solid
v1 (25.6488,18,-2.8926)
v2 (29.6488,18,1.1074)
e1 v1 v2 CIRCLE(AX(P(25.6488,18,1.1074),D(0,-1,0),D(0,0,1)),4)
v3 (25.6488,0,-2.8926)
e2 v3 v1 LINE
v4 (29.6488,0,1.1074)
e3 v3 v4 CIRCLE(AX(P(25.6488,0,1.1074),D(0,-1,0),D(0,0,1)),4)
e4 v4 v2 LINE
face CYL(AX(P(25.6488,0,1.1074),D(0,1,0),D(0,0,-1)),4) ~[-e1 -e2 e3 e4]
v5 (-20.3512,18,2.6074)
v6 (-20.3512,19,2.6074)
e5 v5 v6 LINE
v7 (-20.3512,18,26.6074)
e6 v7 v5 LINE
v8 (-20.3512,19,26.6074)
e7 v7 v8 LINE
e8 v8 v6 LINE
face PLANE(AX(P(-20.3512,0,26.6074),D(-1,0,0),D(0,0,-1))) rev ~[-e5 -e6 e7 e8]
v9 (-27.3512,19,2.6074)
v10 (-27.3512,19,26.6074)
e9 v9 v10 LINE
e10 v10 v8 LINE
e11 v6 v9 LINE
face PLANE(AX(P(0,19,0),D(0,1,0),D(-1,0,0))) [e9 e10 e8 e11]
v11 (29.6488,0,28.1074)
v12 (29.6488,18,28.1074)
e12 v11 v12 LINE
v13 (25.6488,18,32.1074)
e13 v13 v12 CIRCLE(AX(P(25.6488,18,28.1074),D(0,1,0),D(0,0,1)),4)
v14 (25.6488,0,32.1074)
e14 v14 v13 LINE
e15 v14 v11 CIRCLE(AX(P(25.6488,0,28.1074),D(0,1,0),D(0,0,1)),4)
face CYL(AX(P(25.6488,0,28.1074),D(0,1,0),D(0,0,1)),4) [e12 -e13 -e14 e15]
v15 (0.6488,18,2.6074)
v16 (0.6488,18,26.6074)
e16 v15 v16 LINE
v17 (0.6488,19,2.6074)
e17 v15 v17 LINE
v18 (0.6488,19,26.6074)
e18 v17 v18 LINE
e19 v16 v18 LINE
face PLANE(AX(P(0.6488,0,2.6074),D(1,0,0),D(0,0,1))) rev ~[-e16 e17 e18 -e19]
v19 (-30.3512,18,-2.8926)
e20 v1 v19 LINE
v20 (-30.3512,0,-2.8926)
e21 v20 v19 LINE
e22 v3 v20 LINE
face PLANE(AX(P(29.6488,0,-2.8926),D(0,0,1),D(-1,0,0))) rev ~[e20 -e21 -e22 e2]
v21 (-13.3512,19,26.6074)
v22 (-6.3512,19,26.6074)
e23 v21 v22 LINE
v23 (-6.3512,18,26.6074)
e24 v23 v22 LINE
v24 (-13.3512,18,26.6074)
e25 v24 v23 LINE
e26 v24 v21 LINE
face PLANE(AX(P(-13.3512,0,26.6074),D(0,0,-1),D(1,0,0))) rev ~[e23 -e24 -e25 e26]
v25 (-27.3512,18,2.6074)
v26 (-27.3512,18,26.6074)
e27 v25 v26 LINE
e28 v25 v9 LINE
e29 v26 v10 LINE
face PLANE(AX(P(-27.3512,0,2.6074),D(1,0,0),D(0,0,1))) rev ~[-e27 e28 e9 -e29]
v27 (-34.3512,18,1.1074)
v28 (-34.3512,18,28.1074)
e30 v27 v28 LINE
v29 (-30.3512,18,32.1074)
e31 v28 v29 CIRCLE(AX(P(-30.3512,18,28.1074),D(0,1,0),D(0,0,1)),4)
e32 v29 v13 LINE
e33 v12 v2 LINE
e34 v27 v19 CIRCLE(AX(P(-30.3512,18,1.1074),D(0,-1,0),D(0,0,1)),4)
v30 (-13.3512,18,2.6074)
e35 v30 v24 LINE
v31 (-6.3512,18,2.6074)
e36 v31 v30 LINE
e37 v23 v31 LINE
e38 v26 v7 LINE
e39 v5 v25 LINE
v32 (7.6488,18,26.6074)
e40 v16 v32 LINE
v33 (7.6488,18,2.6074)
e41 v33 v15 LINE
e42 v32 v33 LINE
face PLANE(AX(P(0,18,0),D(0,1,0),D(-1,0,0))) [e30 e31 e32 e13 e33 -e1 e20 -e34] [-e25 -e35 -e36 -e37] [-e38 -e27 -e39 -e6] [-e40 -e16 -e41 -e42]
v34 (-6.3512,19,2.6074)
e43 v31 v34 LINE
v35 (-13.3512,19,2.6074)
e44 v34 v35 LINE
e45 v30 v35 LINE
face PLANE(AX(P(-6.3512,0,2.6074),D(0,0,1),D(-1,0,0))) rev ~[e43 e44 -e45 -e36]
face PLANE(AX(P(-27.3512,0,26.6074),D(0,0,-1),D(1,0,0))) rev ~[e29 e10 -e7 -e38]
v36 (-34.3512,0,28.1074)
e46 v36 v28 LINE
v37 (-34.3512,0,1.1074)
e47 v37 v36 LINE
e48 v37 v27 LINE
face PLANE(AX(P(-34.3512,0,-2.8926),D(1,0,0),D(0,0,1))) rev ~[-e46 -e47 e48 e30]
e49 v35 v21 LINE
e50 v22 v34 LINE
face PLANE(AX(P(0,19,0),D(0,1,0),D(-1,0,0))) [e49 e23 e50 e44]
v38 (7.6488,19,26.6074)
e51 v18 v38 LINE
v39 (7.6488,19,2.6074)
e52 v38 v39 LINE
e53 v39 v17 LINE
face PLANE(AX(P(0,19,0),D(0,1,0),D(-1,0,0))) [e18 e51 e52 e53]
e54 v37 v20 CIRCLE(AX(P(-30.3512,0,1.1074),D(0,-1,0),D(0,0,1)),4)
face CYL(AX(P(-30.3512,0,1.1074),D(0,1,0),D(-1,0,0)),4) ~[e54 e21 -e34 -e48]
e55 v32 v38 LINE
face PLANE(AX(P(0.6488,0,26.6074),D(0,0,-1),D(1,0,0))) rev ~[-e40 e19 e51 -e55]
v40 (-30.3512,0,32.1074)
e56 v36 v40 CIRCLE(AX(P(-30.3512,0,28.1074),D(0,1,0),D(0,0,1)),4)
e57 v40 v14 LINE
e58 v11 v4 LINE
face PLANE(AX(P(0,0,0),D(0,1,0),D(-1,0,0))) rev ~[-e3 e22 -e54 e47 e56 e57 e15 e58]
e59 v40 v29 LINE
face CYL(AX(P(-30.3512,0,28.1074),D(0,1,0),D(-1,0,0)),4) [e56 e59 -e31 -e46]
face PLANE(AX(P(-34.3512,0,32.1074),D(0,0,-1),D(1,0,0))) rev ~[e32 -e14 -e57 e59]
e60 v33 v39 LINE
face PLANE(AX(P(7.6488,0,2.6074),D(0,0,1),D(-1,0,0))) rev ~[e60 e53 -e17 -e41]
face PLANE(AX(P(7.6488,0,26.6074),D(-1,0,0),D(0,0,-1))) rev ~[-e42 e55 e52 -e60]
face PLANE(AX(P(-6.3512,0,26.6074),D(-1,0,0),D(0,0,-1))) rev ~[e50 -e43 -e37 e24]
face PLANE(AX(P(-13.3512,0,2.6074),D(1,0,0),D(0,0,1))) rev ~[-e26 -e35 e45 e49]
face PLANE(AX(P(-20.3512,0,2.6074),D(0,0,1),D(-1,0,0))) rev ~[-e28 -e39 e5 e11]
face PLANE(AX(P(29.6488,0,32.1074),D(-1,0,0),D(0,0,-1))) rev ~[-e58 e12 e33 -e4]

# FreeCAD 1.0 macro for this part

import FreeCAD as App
import Part
import Sketcher
from FreeCAD import Vector
Q = App.Units.Quantity


def edges_at(feature, points):
    """Names of the edges that pass closest to the given points."""
    edges = feature.Shape.Edges
    near = lambda p: min(range(len(edges)), key=lambda i: edges[i].distToShape(Part.Vertex(*p))[0])
    return sorted({f"Edge{near(p) + 1}" for p in points})

doc = App.newDocument("Part")
body = doc.addObject("PartDesign::Body", "Body")

# Sketch on XZ plane
sketch1 = doc.addObject("Sketcher::SketchObject", "Sketch")
body.addObject(sketch1)
sketch1.AttachmentSupport = (doc.XZ_Plane, [""])
sketch1.MapMode = "FlatFace"
sketch1.addGeometry(Part.LineSegment(Vector(-34, -3, 0), Vector(-34, 32, 0)), False)
sketch1.addGeometry(Part.LineSegment(Vector(-34, 32, 0), Vector(30, 32, 0)), False)
sketch1.addGeometry(Part.LineSegment(Vector(30, 32, 0), Vector(30, -3, 0)), False)
sketch1.addGeometry(Part.LineSegment(Vector(30, -3, 0), Vector(-34, -3, 0)), False)
sketch1.addGeometry(Part.LineSegment(Vector(1, 27, 0), Vector(1, 3, 0)), False)
sketch1.addGeometry(Part.LineSegment(Vector(1, 3, 0), Vector(8, 3, 0)), False)
sketch1.addGeometry(Part.LineSegment(Vector(8, 3, 0), Vector(8, 27, 0)), False)
sketch1.addGeometry(Part.LineSegment(Vector(8, 27, 0), Vector(1, 27, 0)), False)
sketch1.addGeometry(Part.LineSegment(Vector(-13, 27, 0), Vector(-13, 3, 0)), False)
sketch1.addGeometry(Part.LineSegment(Vector(-13, 3, 0), Vector(-6, 3, 0)), False)
sketch1.addGeometry(Part.LineSegment(Vector(-6, 3, 0), Vector(-6, 27, 0)), False)
sketch1.addGeometry(Part.LineSegment(Vector(-6, 27, 0), Vector(-13, 27, 0)), False)
sketch1.addGeometry(Part.LineSegment(Vector(-20, 27, 0), Vector(-27, 27, 0)), False)
sketch1.addGeometry(Part.LineSegment(Vector(-27, 27, 0), Vector(-27, 3, 0)), False)
sketch1.addGeometry(Part.LineSegment(Vector(-27, 3, 0), Vector(-20, 3, 0)), False)
sketch1.addGeometry(Part.LineSegment(Vector(-20, 3, 0), Vector(-20, 27, 0)), False)
sketch1.addConstraint(Sketcher.Constraint("Coincident", 0, 2, 1, 1))
sketch1.addConstraint(Sketcher.Constraint("Coincident", 1, 2, 2, 1))
sketch1.addConstraint(Sketcher.Constraint("Coincident", 2, 2, 3, 1))
sketch1.addConstraint(Sketcher.Constraint("Coincident", 3, 2, 0, 1))
sketch1.addConstraint(Sketcher.Constraint("Coincident", 4, 2, 5, 1))
sketch1.addConstraint(Sketcher.Constraint("Coincident", 5, 2, 6, 1))
sketch1.addConstraint(Sketcher.Constraint("Coincident", 6, 2, 7, 1))
sketch1.addConstraint(Sketcher.Constraint("Coincident", 7, 2, 4, 1))
sketch1.addConstraint(Sketcher.Constraint("Coincident", 8, 2, 9, 1))
sketch1.addConstraint(Sketcher.Constraint("Coincident", 9, 2, 10, 1))
sketch1.addConstraint(Sketcher.Constraint("Coincident", 10, 2, 11, 1))
sketch1.addConstraint(Sketcher.Constraint("Coincident", 11, 2, 8, 1))
sketch1.addConstraint(Sketcher.Constraint("Coincident", 12, 2, 13, 1))
sketch1.addConstraint(Sketcher.Constraint("Coincident", 13, 2, 14, 1))
sketch1.addConstraint(Sketcher.Constraint("Coincident", 14, 2, 15, 1))
sketch1.addConstraint(Sketcher.Constraint("Coincident", 15, 2, 12, 1))
sketch1.addConstraint(Sketcher.Constraint("Vertical", 0))
sketch1.addConstraint(Sketcher.Constraint("Horizontal", 1))
sketch1.addConstraint(Sketcher.Constraint("Vertical", 2))
sketch1.addConstraint(Sketcher.Constraint("Horizontal", 3))
sketch1.addConstraint(Sketcher.Constraint("Vertical", 4))
sketch1.addConstraint(Sketcher.Constraint("Horizontal", 5))
sketch1.addConstraint(Sketcher.Constraint("Vertical", 6))
sketch1.addConstraint(Sketcher.Constraint("Horizontal", 7))
sketch1.addConstraint(Sketcher.Constraint("Vertical", 8))
sketch1.addConstraint(Sketcher.Constraint("Horizontal", 9))
sketch1.addConstraint(Sketcher.Constraint("Vertical", 10))
sketch1.addConstraint(Sketcher.Constraint("Horizontal", 11))
sketch1.addConstraint(Sketcher.Constraint("Horizontal", 12))
sketch1.addConstraint(Sketcher.Constraint("Vertical", 13))
sketch1.addConstraint(Sketcher.Constraint("Horizontal", 14))
sketch1.addConstraint(Sketcher.Constraint("Vertical", 15))
sketch1.addConstraint(Sketcher.Constraint("Horizontal", 5, 2, 8, 2))
sketch1.addConstraint(Sketcher.Constraint("Horizontal", 7, 2, 10, 2))
sketch1.addConstraint(Sketcher.Constraint("Horizontal", 11, 2, 12, 2))
sketch1.addConstraint(Sketcher.Constraint("Horizontal", 9, 2, 13, 2))
sketch1.addConstraint(Sketcher.Constraint("Equal", 7, 9))
sketch1.addConstraint(Sketcher.Constraint("Equal", 11, 12))
sketch1.addConstraint(Sketcher.Constraint("DistanceX", 1, 1, 1, 2, Q("64 mm")))
sketch1.addConstraint(Sketcher.Constraint("DistanceX", 5, 1, 5, 2, Q("7 mm")))
sketch1.addConstraint(Sketcher.Constraint("DistanceY", 0, 1, 0, 2, Q("35 mm")))
sketch1.addConstraint(Sketcher.Constraint("DistanceY", 4, 2, 4, 1, Q("24 mm")))
sketch1.addConstraint(Sketcher.Constraint("DistanceX", 3, 2, 4, 2, Q("35 mm")))
sketch1.addConstraint(Sketcher.Constraint("DistanceX", 8, 2, 4, 2, Q("14 mm")))
sketch1.addConstraint(Sketcher.Constraint("DistanceX", 0, 2, 12, 2, Q("7 mm")))
sketch1.addConstraint(Sketcher.Constraint("DistanceY", 2, 2, 4, 2, Q("5.5 mm")))
sketch1.addConstraint(Sketcher.Constraint("DistanceX", 0, 2, -1, 1, Q("34.3512 mm")))
sketch1.addConstraint(Sketcher.Constraint("DistanceY", -1, 1, 0, 2, Q("32.1074 mm")))
pad1 = doc.addObject("PartDesign::Pad", "Pad")
body.addObject(pad1)
pad1.Profile = sketch1
pad1.Length = 18
pad1.Reversed = True

# Sketch on XZ plane
sketch2 = doc.addObject("Sketcher::SketchObject", "Sketch001")
body.addObject(sketch2)
sketch2.AttachmentSupport = (doc.XZ_Plane, [""])
sketch2.MapMode = "FlatFace"
sketch2.addGeometry(Part.LineSegment(Vector(-27, 3, 0), Vector(-27, 27, 0)), False)
sketch2.addGeometry(Part.LineSegment(Vector(-27, 27, 0), Vector(-20, 27, 0)), False)
sketch2.addGeometry(Part.LineSegment(Vector(-20, 27, 0), Vector(-20, 3, 0)), False)
sketch2.addGeometry(Part.LineSegment(Vector(-20, 3, 0), Vector(-27, 3, 0)), False)
sketch2.addGeometry(Part.LineSegment(Vector(-6, 3, 0), Vector(-13, 3, 0)), False)
sketch2.addGeometry(Part.LineSegment(Vector(-13, 3, 0), Vector(-13, 27, 0)), False)
sketch2.addGeometry(Part.LineSegment(Vector(-13, 27, 0), Vector(-6, 27, 0)), False)
sketch2.addGeometry(Part.LineSegment(Vector(-6, 27, 0), Vector(-6, 3, 0)), False)
sketch2.addGeometry(Part.LineSegment(Vector(8, 3, 0), Vector(1, 3, 0)), False)
sketch2.addGeometry(Part.LineSegment(Vector(1, 3, 0), Vector(1, 27, 0)), False)
sketch2.addGeometry(Part.LineSegment(Vector(1, 27, 0), Vector(8, 27, 0)), False)
sketch2.addGeometry(Part.LineSegment(Vector(8, 27, 0), Vector(8, 3, 0)), False)
sketch2.addConstraint(Sketcher.Constraint("Coincident", 0, 2, 1, 1))
sketch2.addConstraint(Sketcher.Constraint("Coincident", 1, 2, 2, 1))
sketch2.addConstraint(Sketcher.Constraint("Coincident", 2, 2, 3, 1))
sketch2.addConstraint(Sketcher.Constraint("Coincident", 3, 2, 0, 1))
sketch2.addConstraint(Sketcher.Constraint("Coincident", 4, 2, 5, 1))
sketch2.addConstraint(Sketcher.Constraint("Coincident", 5, 2, 6, 1))
sketch2.addConstraint(Sketcher.Constraint("Coincident", 6, 2, 7, 1))
sketch2.addConstraint(Sketcher.Constraint("Coincident", 7, 2, 4, 1))
sketch2.addConstraint(Sketcher.Constraint("Coincident", 8, 2, 9, 1))
sketch2.addConstraint(Sketcher.Constraint("Coincident", 9, 2, 10, 1))
sketch2.addConstraint(Sketcher.Constraint("Coincident", 10, 2, 11, 1))
sketch2.addConstraint(Sketcher.Constraint("Coincident", 11, 2, 8, 1))
sketch2.addConstraint(Sketcher.Constraint("Vertical", 0))
sketch2.addConstraint(Sketcher.Constraint("Horizontal", 1))
sketch2.addConstraint(Sketcher.Constraint("Vertical", 2))
sketch2.addConstraint(Sketcher.Constraint("Horizontal", 3))
sketch2.addConstraint(Sketcher.Constraint("Horizontal", 4))
sketch2.addConstraint(Sketcher.Constraint("Vertical", 5))
sketch2.addConstraint(Sketcher.Constraint("Horizontal", 6))
sketch2.addConstraint(Sketcher.Constraint("Vertical", 7))
sketch2.addConstraint(Sketcher.Constraint("Horizontal", 8))
sketch2.addConstraint(Sketcher.Constraint("Vertical", 9))
sketch2.addConstraint(Sketcher.Constraint("Horizontal", 10))
sketch2.addConstraint(Sketcher.Constraint("Vertical", 11))
sketch2.addConstraint(Sketcher.Constraint("Horizontal", 3, 2, 4, 2))
sketch2.addConstraint(Sketcher.Constraint("Horizontal", 1, 2, 5, 2))
sketch2.addConstraint(Sketcher.Constraint("Horizontal", 7, 2, 8, 2))
sketch2.addConstraint(Sketcher.Constraint("Horizontal", 6, 2, 9, 2))
sketch2.addConstraint(Sketcher.Constraint("Equal", 3, 4))
sketch2.addConstraint(Sketcher.Constraint("Equal", 6, 8))
sketch2.addConstraint(Sketcher.Constraint("DistanceX", 1, 1, 1, 2, Q("7 mm")))
sketch2.addConstraint(Sketcher.Constraint("DistanceY", 0, 1, 0, 2, Q("24 mm")))
sketch2.addConstraint(Sketcher.Constraint("DistanceX", 2, 2, 4, 2, Q("7 mm")))
sketch2.addConstraint(Sketcher.Constraint("DistanceX", 7, 2, 8, 2, Q("7 mm")))
sketch2.addConstraint(Sketcher.Constraint("DistanceX", 0, 2, -1, 1, Q("27.3512 mm")))
sketch2.addConstraint(Sketcher.Constraint("DistanceY", -1, 1, 0, 2, Q("26.6074 mm")))
pad2 = doc.addObject("PartDesign::Pad", "Pad001")
body.addObject(pad2)
pad2.Profile = sketch2
pad2.Length = 19
pad2.Reversed = True
doc.recompute()

fillet = doc.addObject("PartDesign::Fillet", "Fillet")
body.addObject(fillet)
fillet.Base = (pad2, edges_at(pad2, [
    (-34.351, 9, -2.893),
    (-34.351, 9, 32.107),
    (29.649, 9, -2.893),
    (29.649, 9, 32.107),
]))
fillet.Radius = 4

doc.recompute()
